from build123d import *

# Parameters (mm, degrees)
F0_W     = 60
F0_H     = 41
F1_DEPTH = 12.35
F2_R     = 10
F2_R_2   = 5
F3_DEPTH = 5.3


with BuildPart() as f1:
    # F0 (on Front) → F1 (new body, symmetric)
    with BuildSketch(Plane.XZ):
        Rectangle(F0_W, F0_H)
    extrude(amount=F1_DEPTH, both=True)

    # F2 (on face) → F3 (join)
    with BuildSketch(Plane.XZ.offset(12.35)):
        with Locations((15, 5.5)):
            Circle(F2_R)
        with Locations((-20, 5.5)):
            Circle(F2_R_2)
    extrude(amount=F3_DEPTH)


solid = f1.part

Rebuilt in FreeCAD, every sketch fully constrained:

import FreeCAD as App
import Part
import Sketcher

V = App.Vector
Q = App.Units.Quantity


def add_polygon(sketch, points):
    """Adds a closed chain of lines whose ends are joined by coincident constraints."""
    first, n = sketch.GeometryCount, len(points)
    for a, b in zip(points, points[1:] + points[:1]):
        sketch.addGeometry(Part.LineSegment(App.Vector(*a, 0), App.Vector(*b, 0)), False)
    for i in range(n):
        sketch.addConstraint(Sketcher.Constraint("Coincident", first + i, 2, first + (i + 1) % n, 1))

doc = App.newDocument("Part")
body = doc.addObject("PartDesign::Body", "Body")

# Sketch on XZ plane
sketch1 = body.newObject("Sketcher::SketchObject", "Sketch")
sketch1.AttachmentSupport = (doc.getObject("XZ_Plane"), [""])
sketch1.MapMode = "FlatFace"
add_polygon(sketch1, [(-30, 20), (-30, -20), (30, -20), (30, 20)])  # lines 0-3
sketch1.addConstraint([
    Sketcher.Constraint("Vertical", 0),
    Sketcher.Constraint("Horizontal", 1),
    Sketcher.Constraint("Vertical", 2),
    Sketcher.Constraint("Horizontal", 3),
    Sketcher.Constraint("Symmetric", 0, 2, 2, 2, -1, 1),
    Sketcher.Constraint("DistanceX", 1, 1, 1, 2, Q("60 mm")),
    Sketcher.Constraint("DistanceY", 0, 2, 0, 1, Q("41 mm")),
])
pad1 = body.newObject("PartDesign::Pad", "Pad")
pad1.Profile = sketch1
pad1.Length = 24.7
pad1.Midplane = True

# Sketch on XZ plane
sketch2 = body.newObject("Sketcher::SketchObject", "Sketch001")
sketch2.AttachmentSupport = (doc.getObject("XZ_Plane"), [""])
sketch2.MapMode = "FlatFace"
sketch2.AttachmentOffset = App.Placement(V(0, 0, 12.35), App.Rotation())
sketch2.addGeometry([
    Part.Circle(V(15, 6, 0), V(0, 0, 1), 10),
    Part.Circle(V(-20, 6, 0), V(0, 0, 1), 5),
], False)
sketch2.addConstraint([
    Sketcher.Constraint("Horizontal", 0, 3, 1, 3),
    Sketcher.Constraint("Diameter", 0, Q("20 mm")),
    Sketcher.Constraint("Diameter", 1, Q("10 mm")),
    Sketcher.Constraint("DistanceX", -1, 1, 0, 3, Q("15 mm")),
    Sketcher.Constraint("DistanceX", 1, 3, -1, 1, Q("20 mm")),
    Sketcher.Constraint("DistanceY", -1, 1, 0, 3, Q("5.5 mm")),
])
pad2 = body.newObject("PartDesign::Pad", "Pad001")
pad2.Profile = sketch2
pad2.Length = 5.3

doc.recompute()
